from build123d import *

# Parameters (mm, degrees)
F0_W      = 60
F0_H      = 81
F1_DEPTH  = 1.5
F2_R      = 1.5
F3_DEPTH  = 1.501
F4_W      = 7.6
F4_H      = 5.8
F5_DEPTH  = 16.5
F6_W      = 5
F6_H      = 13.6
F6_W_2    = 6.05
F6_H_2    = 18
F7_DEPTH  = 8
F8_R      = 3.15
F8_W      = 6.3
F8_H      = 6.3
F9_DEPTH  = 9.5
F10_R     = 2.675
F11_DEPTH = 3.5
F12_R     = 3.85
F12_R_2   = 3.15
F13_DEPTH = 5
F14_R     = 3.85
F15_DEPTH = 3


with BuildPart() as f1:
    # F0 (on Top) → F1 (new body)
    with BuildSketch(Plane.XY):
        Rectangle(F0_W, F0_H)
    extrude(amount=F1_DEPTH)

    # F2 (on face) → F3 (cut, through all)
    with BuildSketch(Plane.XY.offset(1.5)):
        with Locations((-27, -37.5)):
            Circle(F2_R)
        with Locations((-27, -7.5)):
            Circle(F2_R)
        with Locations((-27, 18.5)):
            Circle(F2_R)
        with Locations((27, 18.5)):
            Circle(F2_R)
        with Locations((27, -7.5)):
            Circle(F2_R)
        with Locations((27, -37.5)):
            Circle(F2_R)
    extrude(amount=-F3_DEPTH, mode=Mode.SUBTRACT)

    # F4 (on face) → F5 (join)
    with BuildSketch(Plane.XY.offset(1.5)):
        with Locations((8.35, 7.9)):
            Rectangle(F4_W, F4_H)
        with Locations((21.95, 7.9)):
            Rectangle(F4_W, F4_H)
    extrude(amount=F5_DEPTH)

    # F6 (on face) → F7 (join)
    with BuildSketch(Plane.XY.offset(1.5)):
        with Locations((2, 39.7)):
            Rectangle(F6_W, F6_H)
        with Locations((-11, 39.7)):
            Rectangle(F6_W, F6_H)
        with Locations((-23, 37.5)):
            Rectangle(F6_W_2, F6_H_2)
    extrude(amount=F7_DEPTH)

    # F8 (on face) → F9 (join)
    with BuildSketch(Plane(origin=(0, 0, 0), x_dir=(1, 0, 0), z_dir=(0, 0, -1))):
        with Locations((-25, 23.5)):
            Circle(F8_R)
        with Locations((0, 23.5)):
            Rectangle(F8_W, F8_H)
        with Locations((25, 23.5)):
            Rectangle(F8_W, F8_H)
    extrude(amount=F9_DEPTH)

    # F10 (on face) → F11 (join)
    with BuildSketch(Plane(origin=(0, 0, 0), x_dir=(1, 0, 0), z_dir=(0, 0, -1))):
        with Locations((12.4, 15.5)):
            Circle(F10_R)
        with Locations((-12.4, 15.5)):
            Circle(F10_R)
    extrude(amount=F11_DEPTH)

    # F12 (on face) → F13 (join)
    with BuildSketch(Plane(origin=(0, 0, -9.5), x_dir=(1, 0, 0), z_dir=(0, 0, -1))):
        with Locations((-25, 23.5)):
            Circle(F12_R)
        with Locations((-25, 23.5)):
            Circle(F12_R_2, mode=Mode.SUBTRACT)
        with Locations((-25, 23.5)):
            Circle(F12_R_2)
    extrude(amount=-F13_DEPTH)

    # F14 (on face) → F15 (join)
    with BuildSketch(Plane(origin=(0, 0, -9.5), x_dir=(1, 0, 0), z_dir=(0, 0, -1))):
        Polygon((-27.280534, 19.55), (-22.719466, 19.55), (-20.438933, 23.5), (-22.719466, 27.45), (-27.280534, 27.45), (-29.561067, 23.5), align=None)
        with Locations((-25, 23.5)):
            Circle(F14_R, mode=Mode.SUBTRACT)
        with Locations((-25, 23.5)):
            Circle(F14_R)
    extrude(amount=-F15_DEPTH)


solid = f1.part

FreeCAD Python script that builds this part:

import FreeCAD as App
import Part
import Sketcher
Q = App.Units.Quantity


def add_polygon(sketch, points):
    """Adds a closed chain of lines whose ends are joined by coincident constraints."""
    first, n = sketch.GeometryCount, len(points)
    for a, b in zip(points, points[1:] + points[:1]):
        sketch.addGeometry(Part.LineSegment(App.Vector(*a, 0), App.Vector(*b, 0)), False)
    for i in range(n):
        sketch.addConstraint(Sketcher.Constraint("Coincident", first + i, 2, first + (i + 1) % n, 1))

doc = App.newDocument("Part")
body = doc.addObject("PartDesign::Body", "Body")

sketch1 = body.newObject("Sketcher::SketchObject", "Sketch")
sketch1.AttachmentSupport = (doc.getObject("XY_Plane"), [""])
sketch1.MapMode = "FlatFace"
add_polygon(sketch1, [(-30, 40.5), (-30, -40.5), (30, -40.5), (30, 40.5)])
sketch1.addConstraint([
    Sketcher.Constraint("Vertical", 0),
    Sketcher.Constraint("Horizontal", 1),
    Sketcher.Constraint("Vertical", 2),
    Sketcher.Constraint("Horizontal", 3),
    Sketcher.Constraint("Symmetric", 0, 2, 2, 2, -1, 1),
    Sketcher.Constraint("DistanceX", 1, 1, 1, 2, 60.0),
    Sketcher.Constraint("DistanceY", 0, 2, 0, 1, 81.0),
])
pad1 = body.newObject("PartDesign::Pad", "Pad")
pad1.Profile = sketch1
pad1.Length = 1.5

sketch2 = body.newObject("Sketcher::SketchObject", "Sketch001")
sketch2.AttachmentSupport = (doc.getObject("XY_Plane"), [""])
sketch2.MapMode = "FlatFace"
sketch2.AttachmentOffset = App.Placement(App.Vector(0, 0, 1.5), App.Rotation())
sketch2.addGeometry([
    Part.Circle(App.Vector(-27, -37.5, 0), App.Vector(0, 0, 1), 1.5),
    Part.Circle(App.Vector(-27, -7.5, 0), App.Vector(0, 0, 1), 1.5),
    Part.Circle(App.Vector(-27, 18.5, 0), App.Vector(0, 0, 1), 1.5),
    Part.Circle(App.Vector(27, 18.5, 0), App.Vector(0, 0, 1), 1.5),
    Part.Circle(App.Vector(27, -7.5, 0), App.Vector(0, 0, 1), 1.5),
    Part.Circle(App.Vector(27, -37.5, 0), App.Vector(0, 0, 1), 1.5),
], False)
sketch2.addConstraint([
    Sketcher.Constraint("Equal", 0, 1),
    Sketcher.Constraint("Equal", 1, 2),
    Sketcher.Constraint("Equal", 2, 3),
    Sketcher.Constraint("Equal", 3, 4),
    Sketcher.Constraint("Equal", 4, 5),
    Sketcher.Constraint("Symmetric", 2, 3, 3, 3, -2),
    Sketcher.Constraint("Symmetric", 1, 3, 4, 3, -2),
    Sketcher.Constraint("Symmetric", 0, 3, 5, 3, -2),
    Sketcher.Constraint("Vertical", 0, 3, 1, 3),
    Sketcher.Constraint("Vertical", 1, 3, 2, 3),
    Sketcher.Constraint("Diameter", 0, 3.0),
    Sketcher.Constraint("DistanceX", 0, 3, -1, 1, 27.0),
    Sketcher.Constraint("DistanceY", 0, 3, 1, 3, 30.0),
    Sketcher.Constraint("DistanceY", 1, 3, 2, 3, 26.0),
    Sketcher.Constraint("DistanceY", 0, 3, -1, 1, 37.5),
])
pocket1 = body.newObject("PartDesign::Pocket", "Pocket")
pocket1.Profile = sketch2
pocket1.Type = "ThroughAll"

sketch3 = body.newObject("Sketcher::SketchObject", "Sketch002")
sketch3.AttachmentSupport = (doc.getObject("XY_Plane"), [""])
sketch3.MapMode = "FlatFace"
sketch3.AttachmentOffset = App.Placement(App.Vector(0, 0, 1.5), App.Rotation())
add_polygon(sketch3, [(4.55, 10.8), (4.55, 5), (12.15, 5), (12.15, 10.8)])
add_polygon(sketch3, [(18.15, 10.8), (18.15, 5), (25.75, 5), (25.75, 10.8)])
sketch3.addConstraint([
    Sketcher.Constraint("Vertical", 0),
    Sketcher.Constraint("Horizontal", 1),
    Sketcher.Constraint("Vertical", 2),
    Sketcher.Constraint("Horizontal", 3),
    Sketcher.Constraint("Vertical", 4),
    Sketcher.Constraint("Horizontal", 5),
    Sketcher.Constraint("Vertical", 6),
    Sketcher.Constraint("Horizontal", 7),
    Sketcher.Constraint("Horizontal", 1, 2, 4, 2),
    Sketcher.Constraint("Horizontal", 3, 2, 6, 2),
    Sketcher.Constraint("Equal", 3, 5),
    Sketcher.Constraint("DistanceX", 1, 1, 1, 2, 7.6),
    Sketcher.Constraint("DistanceY", 0, 2, 0, 1, 5.8),
    Sketcher.Constraint("DistanceY", -1, 1, 0, 2, 5.0),
    Sketcher.Constraint("DistanceX", 1, 2, 4, 2, 6.0),
    Sketcher.Constraint("DistanceX", -1, 1, 0, 2, 4.55),
])
pad2 = body.newObject("PartDesign::Pad", "Pad001")
pad2.Profile = sketch3
pad2.Length = 16.5

sketch4 = body.newObject("Sketcher::SketchObject", "Sketch003")
sketch4.AttachmentSupport = (doc.getObject("XY_Plane"), [""])
sketch4.MapMode = "FlatFace"
sketch4.AttachmentOffset = App.Placement(App.Vector(0, 0, 1.5), App.Rotation())
add_polygon(sketch4, [(-0.5, 46.5), (-0.5, 32.9), (4.5, 32.9), (4.5, 46.5)])
add_polygon(sketch4, [(-13.5, 46.5), (-13.5, 32.9), (-8.5, 32.9), (-8.5, 46.5)])
add_polygon(sketch4, [(-26.025, 46.5), (-26.025, 28.5), (-19.975, 28.5), (-19.975, 46.5)])
sketch4.addConstraint([
    Sketcher.Constraint("Vertical", 0),
    Sketcher.Constraint("Horizontal", 1),
    Sketcher.Constraint("Vertical", 2),
    Sketcher.Constraint("Horizontal", 3),
    Sketcher.Constraint("Vertical", 4),
    Sketcher.Constraint("Horizontal", 5),
    Sketcher.Constraint("Vertical", 6),
    Sketcher.Constraint("Horizontal", 7),
    Sketcher.Constraint("Vertical", 8),
    Sketcher.Constraint("Horizontal", 9),
    Sketcher.Constraint("Vertical", 10),
    Sketcher.Constraint("Horizontal", 11),
    Sketcher.Constraint("Horizontal", 1, 2, 4, 2),
    Sketcher.Constraint("Horizontal", 3, 2, 6, 2),
    Sketcher.Constraint("Horizontal", 7, 2, 10, 2),
    Sketcher.Constraint("Equal", 3, 5),
    Sketcher.Constraint("DistanceX", 1, 1, 1, 2, 5.0),
    Sketcher.Constraint("DistanceY", 8, 2, 8, 1, 18.0),
    Sketcher.Constraint("DistanceY", 0, 2, 0, 1, 13.6),
    Sketcher.Constraint("DistanceX", 4, 2, 0, 2, 13.0),
    Sketcher.Constraint("DistanceX", 9, 1, 9, 2, 6.05),
    Sketcher.Constraint("DistanceX", 0, 2, -1, 1, 0.5),
    Sketcher.Constraint("DistanceY", -1, 1, 0, 2, 32.9),
    Sketcher.Constraint("DistanceX", 8, 2, -1, 1, 26.025),
])
pad3 = body.newObject("PartDesign::Pad", "Pad002")
pad3.Profile = sketch4
pad3.Length = 8

sketch5 = body.newObject("Sketcher::SketchObject", "Sketch004")
sketch5.AttachmentSupport = (doc.getObject("XY_Plane"), [""])
sketch5.MapMode = "FlatFace"
sketch5.addGeometry(Part.Circle(App.Vector(-25, -23.5, 0), App.Vector(0, 0, 1), 3.15), False)
add_polygon(sketch5, [(-3.15, -26.65), (-3.15, -20.35), (3.15, -20.35), (3.15, -26.65)])
add_polygon(sketch5, [(21.85, -26.65), (21.85, -20.35), (28.15, -20.35), (28.15, -26.65)])
sketch5.addConstraint([
    Sketcher.Constraint("Vertical", 1),
    Sketcher.Constraint("Horizontal", 2),
    Sketcher.Constraint("Vertical", 3),
    Sketcher.Constraint("Horizontal", 4),
    Sketcher.Constraint("Vertical", 5),
    Sketcher.Constraint("Horizontal", 6),
    Sketcher.Constraint("Vertical", 7),
    Sketcher.Constraint("Horizontal", 8),
    Sketcher.Constraint("Horizontal", 2, 2, 5, 2),
    Sketcher.Constraint("Horizontal", 4, 2, 7, 2),
    Sketcher.Constraint("Equal", 4, 6),
    Sketcher.Constraint("Equal", 8, 1),
    Sketcher.Constraint("Diameter", 0, 6.3),
    Sketcher.Constraint("DistanceX", 2, 1, 2, 2, 6.3),
    Sketcher.Constraint("DistanceX", 0, 3, -1, 1, 25.0),
    Sketcher.Constraint("DistanceX", 1, 2, 5, 2, 25.0),
    Sketcher.Constraint("DistanceY", 0, 3, -1, 1, 23.5),
    Sketcher.Constraint("DistanceX", 1, 2, -1, 1, 3.15),
    Sketcher.Constraint("DistanceY", 1, 2, -1, 1, 20.35),
])
pad4 = body.newObject("PartDesign::Pad", "Pad003")
pad4.Profile = sketch5
pad4.Length = 9.5
pad4.Reversed = True

sketch6 = body.newObject("Sketcher::SketchObject", "Sketch005")
sketch6.AttachmentSupport = (doc.getObject("XY_Plane"), [""])
sketch6.MapMode = "FlatFace"
sketch6.addGeometry([
    Part.Circle(App.Vector(12.4, -15.5, 0), App.Vector(0, 0, 1), 2.675),
    Part.Circle(App.Vector(-12.4, -15.5, 0), App.Vector(0, 0, 1), 2.675),
], False)
sketch6.addConstraint([
    Sketcher.Constraint("Equal", 0, 1),
    Sketcher.Constraint("Symmetric", 0, 3, 1, 3, -2),
    Sketcher.Constraint("Diameter", 0, 5.35),
    Sketcher.Constraint("DistanceX", -1, 1, 0, 3, 12.4),
    Sketcher.Constraint("DistanceY", 0, 3, -1, 1, 15.5),
])
pad5 = body.newObject("PartDesign::Pad", "Pad004")
pad5.Profile = sketch6
pad5.Length = 3.5
pad5.Reversed = True

sketch7 = body.newObject("Sketcher::SketchObject", "Sketch006")
sketch7.AttachmentSupport = (doc.getObject("XY_Plane"), [""])
sketch7.MapMode = "FlatFace"
sketch7.AttachmentOffset = App.Placement(App.Vector(0, 0, -9.5), App.Rotation())
sketch7.addGeometry(Part.Circle(App.Vector(-25, -23.5, 0), App.Vector(0, 0, 1), 3.85), False)
sketch7.addConstraint([
    Sketcher.Constraint("Diameter", 0, 7.7),
    Sketcher.Constraint("DistanceX", 0, 3, -1, 1, 25.0),
    Sketcher.Constraint("DistanceY", 0, 3, -1, 1, 23.5),
])
pad6 = body.newObject("PartDesign::Pad", "Pad005")
pad6.Profile = sketch7
pad6.Length = 5

sketch8 = body.newObject("Sketcher::SketchObject", "Sketch007")
sketch8.AttachmentSupport = (doc.getObject("XY_Plane"), [""])
sketch8.MapMode = "FlatFace"
sketch8.AttachmentOffset = App.Placement(App.Vector(0, 0, -9.5), App.Rotation())
add_polygon(sketch8, [(-27.280534, -19.55), (-22.719466, -19.55), (-20.438933, -23.5), (-22.719466, -27.45), (-27.280534, -27.45), (-29.561067, -23.5)])
sketch8.addConstraint([
    Sketcher.Constraint("Horizontal", 0),
    Sketcher.Constraint("Horizontal", 3),
    Sketcher.Constraint("Parallel", 1, 4),
    Sketcher.Constraint("Parallel", 2, 5),
    Sketcher.Constraint("Horizontal", 1, 2, 4, 2),
    Sketcher.Constraint("Vertical", 0, 2, 2, 2),
    Sketcher.Constraint("Vertical", 3, 2, 5, 2),
    Sketcher.Constraint("Angle", 1, Q("-60.000006 deg")),
    Sketcher.Constraint("DistanceY", 1, 2, -1, 1, 23.5),
    Sketcher.Constraint("DistanceY", 2, 2, 0, 2, 7.9),
    Sketcher.Constraint("DistanceX", 3, 2, 1, 2, 6.841601),
    Sketcher.Constraint("DistanceX", 0, 2, -1, 1, 22.719466),
])
pad7 = body.newObject("PartDesign::Pad", "Pad006")
pad7.Profile = sketch8
pad7.Length = 3

doc.recompute()
